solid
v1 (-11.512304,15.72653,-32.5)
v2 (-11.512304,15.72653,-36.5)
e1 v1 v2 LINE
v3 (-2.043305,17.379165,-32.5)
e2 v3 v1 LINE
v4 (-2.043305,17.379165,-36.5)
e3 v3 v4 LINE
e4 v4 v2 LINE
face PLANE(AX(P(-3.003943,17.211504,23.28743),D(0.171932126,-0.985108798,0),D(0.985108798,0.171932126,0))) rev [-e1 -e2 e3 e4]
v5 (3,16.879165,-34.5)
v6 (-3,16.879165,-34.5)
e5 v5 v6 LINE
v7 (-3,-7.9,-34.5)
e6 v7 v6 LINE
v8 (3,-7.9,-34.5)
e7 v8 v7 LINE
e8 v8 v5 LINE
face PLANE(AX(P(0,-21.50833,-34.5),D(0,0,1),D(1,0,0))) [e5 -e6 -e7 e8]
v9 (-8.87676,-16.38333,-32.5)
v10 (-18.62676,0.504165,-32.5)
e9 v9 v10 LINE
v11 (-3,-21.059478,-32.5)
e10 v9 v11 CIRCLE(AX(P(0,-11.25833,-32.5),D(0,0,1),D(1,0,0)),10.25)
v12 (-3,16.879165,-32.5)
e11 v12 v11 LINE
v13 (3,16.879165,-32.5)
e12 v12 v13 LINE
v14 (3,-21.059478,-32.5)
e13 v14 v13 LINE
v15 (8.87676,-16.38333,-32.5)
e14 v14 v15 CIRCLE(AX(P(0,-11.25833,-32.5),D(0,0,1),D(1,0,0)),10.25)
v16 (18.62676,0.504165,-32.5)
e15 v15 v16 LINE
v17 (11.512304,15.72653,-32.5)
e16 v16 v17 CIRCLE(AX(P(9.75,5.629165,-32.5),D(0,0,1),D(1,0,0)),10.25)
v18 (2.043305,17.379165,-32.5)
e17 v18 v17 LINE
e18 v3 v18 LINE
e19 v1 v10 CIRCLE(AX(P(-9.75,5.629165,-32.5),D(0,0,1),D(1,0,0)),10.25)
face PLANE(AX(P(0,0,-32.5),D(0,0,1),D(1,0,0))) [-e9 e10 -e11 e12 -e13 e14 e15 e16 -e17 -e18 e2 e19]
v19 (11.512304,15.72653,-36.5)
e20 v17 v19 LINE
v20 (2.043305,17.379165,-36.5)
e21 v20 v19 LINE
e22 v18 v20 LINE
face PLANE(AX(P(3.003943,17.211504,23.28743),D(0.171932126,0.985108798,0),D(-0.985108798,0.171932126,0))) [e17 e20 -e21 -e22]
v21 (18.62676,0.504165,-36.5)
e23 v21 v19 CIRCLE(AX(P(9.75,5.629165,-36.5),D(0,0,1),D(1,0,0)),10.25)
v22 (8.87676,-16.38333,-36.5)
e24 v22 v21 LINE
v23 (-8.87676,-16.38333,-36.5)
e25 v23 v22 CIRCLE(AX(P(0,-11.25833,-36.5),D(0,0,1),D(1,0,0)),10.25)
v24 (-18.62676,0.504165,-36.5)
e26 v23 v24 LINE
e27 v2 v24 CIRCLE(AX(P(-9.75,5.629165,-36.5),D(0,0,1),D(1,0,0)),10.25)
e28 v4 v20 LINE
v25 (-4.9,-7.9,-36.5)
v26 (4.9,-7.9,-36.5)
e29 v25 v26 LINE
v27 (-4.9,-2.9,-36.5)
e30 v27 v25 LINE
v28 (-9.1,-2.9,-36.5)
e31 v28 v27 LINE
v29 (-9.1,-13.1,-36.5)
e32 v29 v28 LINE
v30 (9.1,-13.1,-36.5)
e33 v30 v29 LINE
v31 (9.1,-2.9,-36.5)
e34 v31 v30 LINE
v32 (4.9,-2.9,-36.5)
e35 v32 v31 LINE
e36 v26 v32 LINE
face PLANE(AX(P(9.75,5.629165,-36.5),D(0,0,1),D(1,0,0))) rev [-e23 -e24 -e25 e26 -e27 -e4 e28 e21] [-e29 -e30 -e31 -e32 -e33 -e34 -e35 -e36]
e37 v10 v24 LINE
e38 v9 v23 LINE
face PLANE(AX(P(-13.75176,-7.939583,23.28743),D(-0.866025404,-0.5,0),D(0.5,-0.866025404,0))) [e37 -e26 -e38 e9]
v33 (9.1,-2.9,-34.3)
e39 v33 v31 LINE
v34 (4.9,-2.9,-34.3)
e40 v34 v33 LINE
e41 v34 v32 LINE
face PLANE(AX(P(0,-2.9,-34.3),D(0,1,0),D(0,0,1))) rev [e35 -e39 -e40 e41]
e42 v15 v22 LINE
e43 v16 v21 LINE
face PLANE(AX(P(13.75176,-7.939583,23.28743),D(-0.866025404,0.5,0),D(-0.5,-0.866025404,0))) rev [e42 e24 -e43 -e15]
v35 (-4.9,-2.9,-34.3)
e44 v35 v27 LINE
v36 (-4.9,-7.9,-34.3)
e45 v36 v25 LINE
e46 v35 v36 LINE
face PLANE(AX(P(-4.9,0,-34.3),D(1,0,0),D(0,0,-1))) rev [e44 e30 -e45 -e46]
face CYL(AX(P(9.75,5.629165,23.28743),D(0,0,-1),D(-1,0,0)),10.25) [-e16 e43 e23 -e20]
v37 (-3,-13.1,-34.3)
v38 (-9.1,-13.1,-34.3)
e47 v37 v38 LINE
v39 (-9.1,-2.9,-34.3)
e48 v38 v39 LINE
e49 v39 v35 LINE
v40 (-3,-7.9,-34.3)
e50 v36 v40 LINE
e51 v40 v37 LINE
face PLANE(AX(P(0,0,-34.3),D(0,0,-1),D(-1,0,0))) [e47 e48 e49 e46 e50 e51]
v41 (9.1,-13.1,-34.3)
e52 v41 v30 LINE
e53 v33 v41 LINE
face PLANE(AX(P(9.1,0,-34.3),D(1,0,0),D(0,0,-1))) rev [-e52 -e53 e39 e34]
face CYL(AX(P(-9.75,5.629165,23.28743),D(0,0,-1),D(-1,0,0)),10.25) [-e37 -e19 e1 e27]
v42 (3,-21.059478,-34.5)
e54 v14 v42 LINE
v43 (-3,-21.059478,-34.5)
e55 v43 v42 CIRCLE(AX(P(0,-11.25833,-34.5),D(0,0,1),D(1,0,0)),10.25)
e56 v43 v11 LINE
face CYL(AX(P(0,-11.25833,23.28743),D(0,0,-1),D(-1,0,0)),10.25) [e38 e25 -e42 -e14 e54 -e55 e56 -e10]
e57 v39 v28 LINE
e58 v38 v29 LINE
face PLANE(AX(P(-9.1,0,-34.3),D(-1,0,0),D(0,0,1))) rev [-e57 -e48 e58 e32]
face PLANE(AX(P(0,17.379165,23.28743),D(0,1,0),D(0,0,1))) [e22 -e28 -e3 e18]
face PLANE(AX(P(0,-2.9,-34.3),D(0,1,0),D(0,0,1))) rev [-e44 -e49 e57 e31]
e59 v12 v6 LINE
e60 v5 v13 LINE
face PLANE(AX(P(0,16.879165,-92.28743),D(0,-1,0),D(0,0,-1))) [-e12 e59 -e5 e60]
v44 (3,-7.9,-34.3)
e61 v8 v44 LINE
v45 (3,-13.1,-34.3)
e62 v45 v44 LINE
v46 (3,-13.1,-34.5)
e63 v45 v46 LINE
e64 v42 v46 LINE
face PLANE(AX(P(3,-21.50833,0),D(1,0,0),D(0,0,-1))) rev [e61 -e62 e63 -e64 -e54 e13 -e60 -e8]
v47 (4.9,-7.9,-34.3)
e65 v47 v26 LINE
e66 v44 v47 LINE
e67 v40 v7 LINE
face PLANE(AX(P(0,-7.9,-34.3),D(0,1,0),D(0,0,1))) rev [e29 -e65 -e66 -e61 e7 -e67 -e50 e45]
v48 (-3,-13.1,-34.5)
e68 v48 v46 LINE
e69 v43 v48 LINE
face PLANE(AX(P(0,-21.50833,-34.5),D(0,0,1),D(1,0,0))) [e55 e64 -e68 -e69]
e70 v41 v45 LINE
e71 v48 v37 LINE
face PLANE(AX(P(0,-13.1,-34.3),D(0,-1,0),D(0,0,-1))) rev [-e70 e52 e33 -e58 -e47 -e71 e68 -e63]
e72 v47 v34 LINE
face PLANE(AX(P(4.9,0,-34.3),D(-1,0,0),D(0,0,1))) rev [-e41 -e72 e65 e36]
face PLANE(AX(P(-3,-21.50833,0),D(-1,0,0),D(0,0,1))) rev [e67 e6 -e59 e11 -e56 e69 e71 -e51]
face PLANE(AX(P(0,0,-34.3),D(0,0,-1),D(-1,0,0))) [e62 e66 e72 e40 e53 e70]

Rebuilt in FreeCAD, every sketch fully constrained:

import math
import FreeCAD as App
import Part
import Sketcher
from FreeCAD import Vector
Q = App.Units.Quantity


def add_polygon(sketch, points):
    """Adds a closed chain of lines whose ends are joined by coincident constraints."""
    first, n = sketch.GeometryCount, len(points)
    for a, b in zip(points, points[1:] + points[:1]):
        sketch.addGeometry(Part.LineSegment(App.Vector(*a, 0), App.Vector(*b, 0)), False)
    for i in range(n):
        sketch.addConstraint(Sketcher.Constraint("Coincident", first + i, 2, first + (i + 1) % n, 1))

doc = App.newDocument("Part")
body = doc.addObject("PartDesign::Body", "Body")

# Sketch on XY plane
sketch1 = doc.addObject("Sketcher::SketchObject", "Sketch")
body.addObject(sketch1)
sketch1.AttachmentSupport = (doc.XY_Plane, [""])
sketch1.MapMode = "FlatFace"
sketch1.AttachmentOffset = App.Placement(Vector(0, 0, -36.5), App.Rotation())
sketch1.addGeometry(Part.LineSegment(Vector(-2, 17.4, 0), Vector(-11.5, 15.7, 0)), False)
sketch1.addGeometry(Part.ArcOfCircle(Part.Circle(Vector(-9.8, 5.6, 0), Vector(0, 0, 1), 10.2), math.radians(100), math.radians(210)), False)
sketch1.addGeometry(Part.LineSegment(Vector(-18.6, 0.5, 0), Vector(-8.9, -16.4, 0)), False)
sketch1.addGeometry(Part.ArcOfCircle(Part.Circle(Vector(0, -11.3, 0), Vector(0, 0, 1), 10.2), math.radians(-150), math.radians(-30)), False)
sketch1.addGeometry(Part.LineSegment(Vector(8.9, -16.4, 0), Vector(18.6, 0.5, 0)), False)
sketch1.addGeometry(Part.ArcOfCircle(Part.Circle(Vector(9.8, 5.6, 0), Vector(0, 0, 1), 10.2), math.radians(-30), math.radians(80)), False)
sketch1.addGeometry(Part.LineSegment(Vector(11.5, 15.7, 0), Vector(2, 17.4, 0)), False)
sketch1.addGeometry(Part.LineSegment(Vector(2, 17.4, 0), Vector(-2, 17.4, 0)), False)
sketch1.addConstraint(Sketcher.Constraint("Tangent", 0, 2, 1, 1))
sketch1.addConstraint(Sketcher.Constraint("Tangent", 1, 2, 2, 1))
sketch1.addConstraint(Sketcher.Constraint("Tangent", 2, 2, 3, 1))
sketch1.addConstraint(Sketcher.Constraint("Tangent", 3, 2, 4, 1))
sketch1.addConstraint(Sketcher.Constraint("Tangent", 4, 2, 5, 1))
sketch1.addConstraint(Sketcher.Constraint("Tangent", 5, 2, 6, 1))
sketch1.addConstraint(Sketcher.Constraint("Coincident", 6, 2, 7, 1))
sketch1.addConstraint(Sketcher.Constraint("Coincident", 7, 2, 0, 1))
sketch1.addConstraint(Sketcher.Constraint("Horizontal", 7))
sketch1.addConstraint(Sketcher.Constraint("Equal", 1, 3))
sketch1.addConstraint(Sketcher.Constraint("Equal", 3, 5))
sketch1.addConstraint(Sketcher.Constraint("Symmetric", 1, 3, 5, 3, -2))
sketch1.addConstraint(Sketcher.Constraint("PointOnObject", 3, 3, -2))
sketch1.addConstraint(Sketcher.Constraint("Horizontal", 0, 2, 5, 2))
sketch1.addConstraint(Sketcher.Constraint("Angle", 2, Q("-60 deg")))
sketch1.addConstraint(Sketcher.Constraint("Radius", 1, 10.25))
sketch1.addConstraint(Sketcher.Constraint("Distance", 2, 19.5))
sketch1.addConstraint(Sketcher.Constraint("DistanceY", 5, 3, 6, 2, 11.75))
sketch1.addConstraint(Sketcher.Constraint("DistanceX", 6, 2, 5, 2, 9.468999))
sketch1.addConstraint(Sketcher.Constraint("DistanceY", 3, 3, -1, 1, 11.25833))
pad1 = doc.addObject("PartDesign::Pad", "Pad")
body.addObject(pad1)
pad1.Profile = sketch1
pad1.Length = 4

# Sketch on XZ plane
sketch2 = doc.addObject("Sketcher::SketchObject", "Sketch001")
body.addObject(sketch2)
sketch2.AttachmentSupport = (doc.XZ_Plane, [""])
sketch2.MapMode = "FlatFace"
sketch2.AttachmentOffset = App.Placement(Vector(0, 0, 21.50833), App.Rotation())
add_polygon(sketch2, [(-3, -34.5), (-3, -31.5), (3, -31.5), (3, -34.5)])  # lines 0-3
sketch2.addConstraint(Sketcher.Constraint("Vertical", 0))
sketch2.addConstraint(Sketcher.Constraint("Horizontal", 1))
sketch2.addConstraint(Sketcher.Constraint("Vertical", 2))
sketch2.addConstraint(Sketcher.Constraint("Horizontal", 3))
sketch2.addConstraint(Sketcher.Constraint("DistanceX", 1, 1, 1, 2, 6.0))
sketch2.addConstraint(Sketcher.Constraint("DistanceY", 0, 1, 0, 2, 3.0))
sketch2.addConstraint(Sketcher.Constraint("DistanceX", 0, 2, -1, 1, 3.0))
sketch2.addConstraint(Sketcher.Constraint("DistanceY", 0, 2, -1, 1, 31.5))
pocket1 = doc.addObject("PartDesign::Pocket", "Pocket")
body.addObject(pocket1)
pocket1.Profile = sketch2
pocket1.Length = 38.387495

# Sketch on XY plane
sketch3 = doc.addObject("Sketcher::SketchObject", "Sketch002")
body.addObject(sketch3)
sketch3.AttachmentSupport = (doc.XY_Plane, [""])
sketch3.MapMode = "FlatFace"
sketch3.AttachmentOffset = App.Placement(Vector(0, 0, -36.5), App.Rotation())
add_polygon(sketch3, [(9.1, -2.9), (9.1, -13.1), (-9.1, -13.1), (-9.1, -2.9), (-4.9, -2.9), (-4.9, -7.9), (4.9, -7.9), (4.9, -2.9)])  # lines 0-7
sketch3.addConstraint(Sketcher.Constraint("Vertical", 0))
sketch3.addConstraint(Sketcher.Constraint("Horizontal", 1))
sketch3.addConstraint(Sketcher.Constraint("Vertical", 2))
sketch3.addConstraint(Sketcher.Constraint("Horizontal", 3))
sketch3.addConstraint(Sketcher.Constraint("Vertical", 4))
sketch3.addConstraint(Sketcher.Constraint("Horizontal", 5))
sketch3.addConstraint(Sketcher.Constraint("Vertical", 6))
sketch3.addConstraint(Sketcher.Constraint("Horizontal", 7))
sketch3.addConstraint(Sketcher.Constraint("Symmetric", 3, 2, 6, 2, -2))
sketch3.addConstraint(Sketcher.Constraint("Equal", 3, 7))
sketch3.addConstraint(Sketcher.Constraint("DistanceY", 4, 2, 4, 1, 5.0))
sketch3.addConstraint(Sketcher.Constraint("DistanceX", 1, 2, 1, 1, 18.2))
sketch3.addConstraint(Sketcher.Constraint("DistanceX", 3, 1, 3, 2, 4.2))
sketch3.addConstraint(Sketcher.Constraint("DistanceY", 0, 2, 0, 1, 10.2))
sketch3.addConstraint(Sketcher.Constraint("DistanceY", 0, 2, -1, 1, 13.1))
pocket2 = doc.addObject("PartDesign::Pocket", "Pocket001")
body.addObject(pocket2)
pocket2.Profile = sketch3
pocket2.Length = 2.2
pocket2.Reversed = True

doc.recompute()
